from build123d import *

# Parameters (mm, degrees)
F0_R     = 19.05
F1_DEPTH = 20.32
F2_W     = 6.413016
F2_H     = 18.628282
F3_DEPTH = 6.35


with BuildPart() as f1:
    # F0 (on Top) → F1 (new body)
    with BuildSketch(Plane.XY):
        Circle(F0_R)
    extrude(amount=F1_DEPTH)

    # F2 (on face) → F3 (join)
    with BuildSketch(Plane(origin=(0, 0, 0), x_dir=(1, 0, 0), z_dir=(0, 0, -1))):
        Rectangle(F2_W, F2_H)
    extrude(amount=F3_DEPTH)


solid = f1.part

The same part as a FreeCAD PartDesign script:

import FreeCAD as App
import Part
import Sketcher
Q = App.Units.Quantity


def add_polygon(sketch, points):
    """Adds a closed chain of lines whose ends are joined by coincident constraints."""
    first, n = sketch.GeometryCount, len(points)
    for a, b in zip(points, points[1:] + points[:1]):
        sketch.addGeometry(Part.LineSegment(App.Vector(*a, 0), App.Vector(*b, 0)), False)
    for i in range(n):
        sketch.addConstraint(Sketcher.Constraint("Coincident", first + i, 2, first + (i + 1) % n, 1))

doc = App.newDocument("Part")
body = doc.addObject("PartDesign::Body", "Body")

sketch1 = body.newObject("Sketcher::SketchObject", "Sketch")
sketch1.AttachmentSupport = (doc.getObject("XY_Plane"), [""])
sketch1.MapMode = "FlatFace"
sketch1.addGeometry(Part.Circle(App.Vector(0, 0, 0), App.Vector(0, 0, 1), 19), False)
sketch1.addConstraint([
    Sketcher.Constraint("Coincident", 0, 3, -1, 1),
    Sketcher.Constraint("Diameter", 0, Q("1.5 in")),
])
pad1 = body.newObject("PartDesign::Pad", "Pad")
pad1.Profile = sketch1
pad1.Length = Q("0.8 in")

sketch2 = body.newObject("Sketcher::SketchObject", "Sketch001")
sketch2.AttachmentSupport = (doc.getObject("XY_Plane"), [""])
sketch2.MapMode = "FlatFace"
add_polygon(sketch2, [(-3, -9), (-3, 9), (3, 9), (3, -9)])
sketch2.addConstraint([
    Sketcher.Constraint("Vertical", 0),
    Sketcher.Constraint("Horizontal", 1),
    Sketcher.Constraint("Vertical", 2),
    Sketcher.Constraint("Horizontal", 3),
    Sketcher.Constraint("Symmetric", 0, 2, 2, 2, -1, 1),
    Sketcher.Constraint("DistanceY", 0, 1, 0, 2, Q("18.628282 mm")),
    Sketcher.Constraint("DistanceX", 1, 1, 1, 2, Q("6.413016 mm")),
])
pad2 = body.newObject("PartDesign::Pad", "Pad001")
pad2.Profile = sketch2
pad2.Length = Q("0.25 in")
pad2.Reversed = True

doc.recompute()
